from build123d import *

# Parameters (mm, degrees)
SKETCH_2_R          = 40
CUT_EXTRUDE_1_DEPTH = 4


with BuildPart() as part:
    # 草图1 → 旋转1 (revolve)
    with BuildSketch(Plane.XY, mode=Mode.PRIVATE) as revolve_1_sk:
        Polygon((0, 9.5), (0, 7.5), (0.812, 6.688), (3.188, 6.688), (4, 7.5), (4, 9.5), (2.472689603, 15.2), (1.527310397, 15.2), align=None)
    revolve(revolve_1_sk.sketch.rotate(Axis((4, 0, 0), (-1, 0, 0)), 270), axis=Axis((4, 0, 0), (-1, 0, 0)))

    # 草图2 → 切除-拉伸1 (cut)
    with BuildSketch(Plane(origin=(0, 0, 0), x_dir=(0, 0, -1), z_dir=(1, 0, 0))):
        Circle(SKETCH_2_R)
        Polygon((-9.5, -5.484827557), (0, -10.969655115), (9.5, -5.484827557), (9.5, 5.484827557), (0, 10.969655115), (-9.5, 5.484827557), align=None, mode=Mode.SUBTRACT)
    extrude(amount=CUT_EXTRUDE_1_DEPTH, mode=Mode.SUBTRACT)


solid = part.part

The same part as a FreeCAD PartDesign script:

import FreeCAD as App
import Part
import Sketcher
Q = App.Units.Quantity


def add_polygon(sketch, points):
    """Adds a closed chain of lines whose ends are joined by coincident constraints."""
    first, n = sketch.GeometryCount, len(points)
    for a, b in zip(points, points[1:] + points[:1]):
        sketch.addGeometry(Part.LineSegment(App.Vector(*a, 0), App.Vector(*b, 0)), False)
    for i in range(n):
        sketch.addConstraint(Sketcher.Constraint("Coincident", first + i, 2, first + (i + 1) % n, 1))

doc = App.newDocument("Part")
body = doc.addObject("PartDesign::Body", "Body")

sketch1 = body.newObject("Sketcher::SketchObject", "Sketch")
sketch1.AttachmentSupport = (doc.getObject("XY_Plane"), [""])
sketch1.MapMode = "FlatFace"
add_polygon(sketch1, [(0, 9.5), (0, 7.5), (0.8, 6.7), (3.2, 6.7), (4, 7.5), (4, 9.5), (2.5, 15.2), (1.5, 15.2)])
sketch1.addConstraint([
    Sketcher.Constraint("Vertical", 0),
    Sketcher.Constraint("Horizontal", 2),
    Sketcher.Constraint("Vertical", 4),
    Sketcher.Constraint("Horizontal", 6),
    Sketcher.Constraint("PointOnObject", 0, 2, -2),
    Sketcher.Constraint("Perpendicular", 1, 3),
    Sketcher.Constraint("Horizontal", 0, 2, 3, 2),
    Sketcher.Constraint("Horizontal", 4, 2, 7, 2),
    Sketcher.Constraint("Equal", 1, 3),
    Sketcher.Constraint("Equal", 5, 7),
    Sketcher.Constraint("DistanceY", 0, 2, 0, 1, 2.0),
    Sketcher.Constraint("Angle", 5, Q("105 deg")),
    Sketcher.Constraint("DistanceX", -1, 1, 3, 2, 4.0),
    Sketcher.Constraint("DistanceY", -1, 1, 0, 2, 7.5),
    Sketcher.Constraint("DistanceY", -1, 1, 5, 2, 15.2),
    Sketcher.Constraint("DistanceX", 2, 1, 2, 2, 2.376),
])
revolution = body.newObject("PartDesign::Revolution", "Revolution")
revolution.Profile = sketch1
revolution.ReferenceAxis = (sketch1, ["H_Axis"])
revolution.Angle = 360

sketch2 = body.newObject("Sketcher::SketchObject", "Sketch001")
sketch2.AttachmentSupport = (doc.getObject("YZ_Plane"), [""])
sketch2.MapMode = "FlatFace"
sketch2.addGeometry(Part.Circle(App.Vector(0, 0, 0), App.Vector(0, 0, 1), 40), False)
add_polygon(sketch2, [(-11, 0), (-5, 10), (5, 10), (11, 0), (5, -10), (-5, -10)])
sketch2.addConstraint([
    Sketcher.Constraint("Horizontal", 2),
    Sketcher.Constraint("Horizontal", 5),
    Sketcher.Constraint("Coincident", 0, 3, -1, 1),
    Sketcher.Constraint("Symmetric", 1, 2, 4, 2, -1, 1),
    Sketcher.Constraint("Symmetric", 3, 2, 6, 2, -1, 1),
    Sketcher.Constraint("PointOnObject", 3, 2, -1),
    Sketcher.Constraint("Parallel", 3, 6),
    Sketcher.Constraint("Vertical", 2, 2, 4, 2),
    Sketcher.Constraint("Diameter", 0, 80.0),
    Sketcher.Constraint("Angle", 1, Q("60 deg")),
    Sketcher.Constraint("DistanceY", 4, 2, 2, 2, 19.0),
    Sketcher.Constraint("DistanceX", 2, 1, 2, 2, 10.969655),
])
pocket1 = body.newObject("PartDesign::Pocket", "Pocket")
pocket1.Profile = sketch2
pocket1.Length = 4
pocket1.Reversed = True

doc.recompute()
